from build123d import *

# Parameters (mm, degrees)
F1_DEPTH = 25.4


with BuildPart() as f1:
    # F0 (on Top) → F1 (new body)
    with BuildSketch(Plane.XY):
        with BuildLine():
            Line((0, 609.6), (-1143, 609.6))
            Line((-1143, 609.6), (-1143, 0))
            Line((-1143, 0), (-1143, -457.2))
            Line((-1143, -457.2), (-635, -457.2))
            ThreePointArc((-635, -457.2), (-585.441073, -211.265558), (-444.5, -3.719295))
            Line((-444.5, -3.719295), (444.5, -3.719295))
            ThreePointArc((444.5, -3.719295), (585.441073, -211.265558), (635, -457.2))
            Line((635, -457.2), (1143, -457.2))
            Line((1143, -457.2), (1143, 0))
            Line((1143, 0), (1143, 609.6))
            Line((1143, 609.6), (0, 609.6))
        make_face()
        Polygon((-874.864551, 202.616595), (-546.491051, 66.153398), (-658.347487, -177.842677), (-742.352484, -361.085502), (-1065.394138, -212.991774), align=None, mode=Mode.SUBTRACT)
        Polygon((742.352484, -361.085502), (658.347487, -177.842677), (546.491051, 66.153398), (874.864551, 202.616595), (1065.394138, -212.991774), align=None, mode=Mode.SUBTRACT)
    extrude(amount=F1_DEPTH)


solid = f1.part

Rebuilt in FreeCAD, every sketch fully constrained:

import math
import FreeCAD as App
import Part
import Sketcher
Q = App.Units.Quantity

doc = App.newDocument("Part")
body = doc.addObject("PartDesign::Body", "Body")

sketch1 = body.newObject("Sketcher::SketchObject", "Sketch")
sketch1.AttachmentSupport = (doc.getObject("XY_Plane"), [""])
sketch1.MapMode = "FlatFace"
sketch1.addGeometry([
    Part.LineSegment(App.Vector(-1143, 610, 0), App.Vector(-1143, -457, 0)),
    Part.LineSegment(App.Vector(-1143, -457, 0), App.Vector(-635, -457, 0)),
    Part.ArcOfCircle(Part.Circle(App.Vector(0, -457, 0), App.Vector(0, 0, 1), 635), math.radians(134), math.radians(180)),
    Part.LineSegment(App.Vector(-444, -4, 0), App.Vector(444, -4, 0)),
    Part.ArcOfCircle(Part.Circle(App.Vector(0, -457, 0), App.Vector(0, 0, 1), 635), math.radians(0), math.radians(46)),
    Part.LineSegment(App.Vector(635, -457, 0), App.Vector(1143, -457, 0)),
    Part.LineSegment(App.Vector(1143, -457, 0), App.Vector(1143, 610, 0)),
    Part.LineSegment(App.Vector(1143, 610, 0), App.Vector(-1143, 610, 0)),
    Part.LineSegment(App.Vector(-1065, -213, 0), App.Vector(-875, 203, 0)),
    Part.LineSegment(App.Vector(-875, 203, 0), App.Vector(-546, 66, 0)),
    Part.LineSegment(App.Vector(-546, 66, 0), App.Vector(-658, -178, 0)),
    Part.LineSegment(App.Vector(-658, -178, 0), App.Vector(-742, -361, 0)),
    Part.LineSegment(App.Vector(-742, -361, 0), App.Vector(-1065, -213, 0)),
    Part.LineSegment(App.Vector(1065, -213, 0), App.Vector(742, -361, 0)),
    Part.LineSegment(App.Vector(742, -361, 0), App.Vector(658, -178, 0)),
    Part.LineSegment(App.Vector(658, -178, 0), App.Vector(546, 66, 0)),
    Part.LineSegment(App.Vector(546, 66, 0), App.Vector(875, 203, 0)),
    Part.LineSegment(App.Vector(875, 203, 0), App.Vector(1065, -213, 0)),
], False)
sketch1.addConstraint([
    Sketcher.Constraint("Coincident", 0, 2, 1, 1),
    Sketcher.Constraint("Coincident", 1, 2, 2, 2),
    Sketcher.Constraint("Coincident", 2, 1, 3, 1),
    Sketcher.Constraint("Coincident", 3, 2, 4, 2),
    Sketcher.Constraint("Coincident", 4, 1, 5, 1),
    Sketcher.Constraint("Coincident", 5, 2, 6, 1),
    Sketcher.Constraint("Coincident", 6, 2, 7, 1),
    Sketcher.Constraint("Coincident", 7, 2, 0, 1),
    Sketcher.Constraint("Coincident", 8, 2, 9, 1),
    Sketcher.Constraint("Coincident", 9, 2, 10, 1),
    Sketcher.Constraint("Coincident", 10, 2, 11, 1),
    Sketcher.Constraint("Coincident", 11, 2, 12, 1),
    Sketcher.Constraint("Coincident", 12, 2, 8, 1),
    Sketcher.Constraint("Coincident", 13, 2, 14, 1),
    Sketcher.Constraint("Coincident", 14, 2, 15, 1),
    Sketcher.Constraint("Coincident", 15, 2, 16, 1),
    Sketcher.Constraint("Coincident", 16, 2, 17, 1),
    Sketcher.Constraint("Coincident", 17, 2, 13, 1),
    Sketcher.Constraint("Vertical", 0),
    Sketcher.Constraint("Horizontal", 1),
    Sketcher.Constraint("Horizontal", 3),
    Sketcher.Constraint("Horizontal", 5),
    Sketcher.Constraint("Vertical", 6),
    Sketcher.Constraint("Horizontal", 7),
    Sketcher.Constraint("Coincident", 4, 3, 2, 3),
    Sketcher.Constraint("Equal", 2, 4),
    Sketcher.Constraint("Symmetric", 0, 2, 5, 2, -2),
    Sketcher.Constraint("Symmetric", 11, 2, 13, 2, -2),
    Sketcher.Constraint("Symmetric", 10, 2, 14, 2, -2),
    Sketcher.Constraint("Symmetric", 9, 2, 15, 2, -2),
    Sketcher.Constraint("Symmetric", 8, 2, 16, 2, -2),
    Sketcher.Constraint("Symmetric", 12, 2, 17, 2, -2),
    Sketcher.Constraint("PointOnObject", 2, 3, -2),
    Sketcher.Constraint("Parallel", 8, 10),
    Sketcher.Constraint("Parallel", 10, 11),
    Sketcher.Constraint("Perpendicular", 11, 12),
    Sketcher.Constraint("Horizontal", 4, 3, 0, 2),
    Sketcher.Constraint("Radius", 2, Q("25.0000001 in")),
    Sketcher.Constraint("DistanceX", 1, 1, 1, 2, Q("20 in")),
    Sketcher.Constraint("DistanceX", 3, 1, 3, 2, Q("35 in")),
    Sketcher.Constraint("DistanceY", 0, 2, 0, 1, Q("42 in")),
    Sketcher.Constraint("Distance", 8, Q("18 in")),
    Sketcher.Constraint("Distance", 9, Q("14 in")),
    Sketcher.Constraint("DistanceY", 2, 3, -1, 1, Q("18 in")),
    Sketcher.Constraint("DistanceY", 11, 2, -1, 1, Q("361.085502 mm")),
    Sketcher.Constraint("DistanceX", 8, 2, 9, 2, Q("328.3735 mm")),
    Sketcher.Constraint("DistanceY", 1, 2, 9, 2, Q("523.353398 mm")),
    Sketcher.Constraint("Distance", 10, Q("268.413761 mm")),
    Sketcher.Constraint("DistanceX", 8, 2, -1, 1, Q("874.864551 mm")),
])
pad1 = body.newObject("PartDesign::Pad", "Pad")
pad1.Profile = sketch1
pad1.Length = Q("1 in")

doc.recompute()
